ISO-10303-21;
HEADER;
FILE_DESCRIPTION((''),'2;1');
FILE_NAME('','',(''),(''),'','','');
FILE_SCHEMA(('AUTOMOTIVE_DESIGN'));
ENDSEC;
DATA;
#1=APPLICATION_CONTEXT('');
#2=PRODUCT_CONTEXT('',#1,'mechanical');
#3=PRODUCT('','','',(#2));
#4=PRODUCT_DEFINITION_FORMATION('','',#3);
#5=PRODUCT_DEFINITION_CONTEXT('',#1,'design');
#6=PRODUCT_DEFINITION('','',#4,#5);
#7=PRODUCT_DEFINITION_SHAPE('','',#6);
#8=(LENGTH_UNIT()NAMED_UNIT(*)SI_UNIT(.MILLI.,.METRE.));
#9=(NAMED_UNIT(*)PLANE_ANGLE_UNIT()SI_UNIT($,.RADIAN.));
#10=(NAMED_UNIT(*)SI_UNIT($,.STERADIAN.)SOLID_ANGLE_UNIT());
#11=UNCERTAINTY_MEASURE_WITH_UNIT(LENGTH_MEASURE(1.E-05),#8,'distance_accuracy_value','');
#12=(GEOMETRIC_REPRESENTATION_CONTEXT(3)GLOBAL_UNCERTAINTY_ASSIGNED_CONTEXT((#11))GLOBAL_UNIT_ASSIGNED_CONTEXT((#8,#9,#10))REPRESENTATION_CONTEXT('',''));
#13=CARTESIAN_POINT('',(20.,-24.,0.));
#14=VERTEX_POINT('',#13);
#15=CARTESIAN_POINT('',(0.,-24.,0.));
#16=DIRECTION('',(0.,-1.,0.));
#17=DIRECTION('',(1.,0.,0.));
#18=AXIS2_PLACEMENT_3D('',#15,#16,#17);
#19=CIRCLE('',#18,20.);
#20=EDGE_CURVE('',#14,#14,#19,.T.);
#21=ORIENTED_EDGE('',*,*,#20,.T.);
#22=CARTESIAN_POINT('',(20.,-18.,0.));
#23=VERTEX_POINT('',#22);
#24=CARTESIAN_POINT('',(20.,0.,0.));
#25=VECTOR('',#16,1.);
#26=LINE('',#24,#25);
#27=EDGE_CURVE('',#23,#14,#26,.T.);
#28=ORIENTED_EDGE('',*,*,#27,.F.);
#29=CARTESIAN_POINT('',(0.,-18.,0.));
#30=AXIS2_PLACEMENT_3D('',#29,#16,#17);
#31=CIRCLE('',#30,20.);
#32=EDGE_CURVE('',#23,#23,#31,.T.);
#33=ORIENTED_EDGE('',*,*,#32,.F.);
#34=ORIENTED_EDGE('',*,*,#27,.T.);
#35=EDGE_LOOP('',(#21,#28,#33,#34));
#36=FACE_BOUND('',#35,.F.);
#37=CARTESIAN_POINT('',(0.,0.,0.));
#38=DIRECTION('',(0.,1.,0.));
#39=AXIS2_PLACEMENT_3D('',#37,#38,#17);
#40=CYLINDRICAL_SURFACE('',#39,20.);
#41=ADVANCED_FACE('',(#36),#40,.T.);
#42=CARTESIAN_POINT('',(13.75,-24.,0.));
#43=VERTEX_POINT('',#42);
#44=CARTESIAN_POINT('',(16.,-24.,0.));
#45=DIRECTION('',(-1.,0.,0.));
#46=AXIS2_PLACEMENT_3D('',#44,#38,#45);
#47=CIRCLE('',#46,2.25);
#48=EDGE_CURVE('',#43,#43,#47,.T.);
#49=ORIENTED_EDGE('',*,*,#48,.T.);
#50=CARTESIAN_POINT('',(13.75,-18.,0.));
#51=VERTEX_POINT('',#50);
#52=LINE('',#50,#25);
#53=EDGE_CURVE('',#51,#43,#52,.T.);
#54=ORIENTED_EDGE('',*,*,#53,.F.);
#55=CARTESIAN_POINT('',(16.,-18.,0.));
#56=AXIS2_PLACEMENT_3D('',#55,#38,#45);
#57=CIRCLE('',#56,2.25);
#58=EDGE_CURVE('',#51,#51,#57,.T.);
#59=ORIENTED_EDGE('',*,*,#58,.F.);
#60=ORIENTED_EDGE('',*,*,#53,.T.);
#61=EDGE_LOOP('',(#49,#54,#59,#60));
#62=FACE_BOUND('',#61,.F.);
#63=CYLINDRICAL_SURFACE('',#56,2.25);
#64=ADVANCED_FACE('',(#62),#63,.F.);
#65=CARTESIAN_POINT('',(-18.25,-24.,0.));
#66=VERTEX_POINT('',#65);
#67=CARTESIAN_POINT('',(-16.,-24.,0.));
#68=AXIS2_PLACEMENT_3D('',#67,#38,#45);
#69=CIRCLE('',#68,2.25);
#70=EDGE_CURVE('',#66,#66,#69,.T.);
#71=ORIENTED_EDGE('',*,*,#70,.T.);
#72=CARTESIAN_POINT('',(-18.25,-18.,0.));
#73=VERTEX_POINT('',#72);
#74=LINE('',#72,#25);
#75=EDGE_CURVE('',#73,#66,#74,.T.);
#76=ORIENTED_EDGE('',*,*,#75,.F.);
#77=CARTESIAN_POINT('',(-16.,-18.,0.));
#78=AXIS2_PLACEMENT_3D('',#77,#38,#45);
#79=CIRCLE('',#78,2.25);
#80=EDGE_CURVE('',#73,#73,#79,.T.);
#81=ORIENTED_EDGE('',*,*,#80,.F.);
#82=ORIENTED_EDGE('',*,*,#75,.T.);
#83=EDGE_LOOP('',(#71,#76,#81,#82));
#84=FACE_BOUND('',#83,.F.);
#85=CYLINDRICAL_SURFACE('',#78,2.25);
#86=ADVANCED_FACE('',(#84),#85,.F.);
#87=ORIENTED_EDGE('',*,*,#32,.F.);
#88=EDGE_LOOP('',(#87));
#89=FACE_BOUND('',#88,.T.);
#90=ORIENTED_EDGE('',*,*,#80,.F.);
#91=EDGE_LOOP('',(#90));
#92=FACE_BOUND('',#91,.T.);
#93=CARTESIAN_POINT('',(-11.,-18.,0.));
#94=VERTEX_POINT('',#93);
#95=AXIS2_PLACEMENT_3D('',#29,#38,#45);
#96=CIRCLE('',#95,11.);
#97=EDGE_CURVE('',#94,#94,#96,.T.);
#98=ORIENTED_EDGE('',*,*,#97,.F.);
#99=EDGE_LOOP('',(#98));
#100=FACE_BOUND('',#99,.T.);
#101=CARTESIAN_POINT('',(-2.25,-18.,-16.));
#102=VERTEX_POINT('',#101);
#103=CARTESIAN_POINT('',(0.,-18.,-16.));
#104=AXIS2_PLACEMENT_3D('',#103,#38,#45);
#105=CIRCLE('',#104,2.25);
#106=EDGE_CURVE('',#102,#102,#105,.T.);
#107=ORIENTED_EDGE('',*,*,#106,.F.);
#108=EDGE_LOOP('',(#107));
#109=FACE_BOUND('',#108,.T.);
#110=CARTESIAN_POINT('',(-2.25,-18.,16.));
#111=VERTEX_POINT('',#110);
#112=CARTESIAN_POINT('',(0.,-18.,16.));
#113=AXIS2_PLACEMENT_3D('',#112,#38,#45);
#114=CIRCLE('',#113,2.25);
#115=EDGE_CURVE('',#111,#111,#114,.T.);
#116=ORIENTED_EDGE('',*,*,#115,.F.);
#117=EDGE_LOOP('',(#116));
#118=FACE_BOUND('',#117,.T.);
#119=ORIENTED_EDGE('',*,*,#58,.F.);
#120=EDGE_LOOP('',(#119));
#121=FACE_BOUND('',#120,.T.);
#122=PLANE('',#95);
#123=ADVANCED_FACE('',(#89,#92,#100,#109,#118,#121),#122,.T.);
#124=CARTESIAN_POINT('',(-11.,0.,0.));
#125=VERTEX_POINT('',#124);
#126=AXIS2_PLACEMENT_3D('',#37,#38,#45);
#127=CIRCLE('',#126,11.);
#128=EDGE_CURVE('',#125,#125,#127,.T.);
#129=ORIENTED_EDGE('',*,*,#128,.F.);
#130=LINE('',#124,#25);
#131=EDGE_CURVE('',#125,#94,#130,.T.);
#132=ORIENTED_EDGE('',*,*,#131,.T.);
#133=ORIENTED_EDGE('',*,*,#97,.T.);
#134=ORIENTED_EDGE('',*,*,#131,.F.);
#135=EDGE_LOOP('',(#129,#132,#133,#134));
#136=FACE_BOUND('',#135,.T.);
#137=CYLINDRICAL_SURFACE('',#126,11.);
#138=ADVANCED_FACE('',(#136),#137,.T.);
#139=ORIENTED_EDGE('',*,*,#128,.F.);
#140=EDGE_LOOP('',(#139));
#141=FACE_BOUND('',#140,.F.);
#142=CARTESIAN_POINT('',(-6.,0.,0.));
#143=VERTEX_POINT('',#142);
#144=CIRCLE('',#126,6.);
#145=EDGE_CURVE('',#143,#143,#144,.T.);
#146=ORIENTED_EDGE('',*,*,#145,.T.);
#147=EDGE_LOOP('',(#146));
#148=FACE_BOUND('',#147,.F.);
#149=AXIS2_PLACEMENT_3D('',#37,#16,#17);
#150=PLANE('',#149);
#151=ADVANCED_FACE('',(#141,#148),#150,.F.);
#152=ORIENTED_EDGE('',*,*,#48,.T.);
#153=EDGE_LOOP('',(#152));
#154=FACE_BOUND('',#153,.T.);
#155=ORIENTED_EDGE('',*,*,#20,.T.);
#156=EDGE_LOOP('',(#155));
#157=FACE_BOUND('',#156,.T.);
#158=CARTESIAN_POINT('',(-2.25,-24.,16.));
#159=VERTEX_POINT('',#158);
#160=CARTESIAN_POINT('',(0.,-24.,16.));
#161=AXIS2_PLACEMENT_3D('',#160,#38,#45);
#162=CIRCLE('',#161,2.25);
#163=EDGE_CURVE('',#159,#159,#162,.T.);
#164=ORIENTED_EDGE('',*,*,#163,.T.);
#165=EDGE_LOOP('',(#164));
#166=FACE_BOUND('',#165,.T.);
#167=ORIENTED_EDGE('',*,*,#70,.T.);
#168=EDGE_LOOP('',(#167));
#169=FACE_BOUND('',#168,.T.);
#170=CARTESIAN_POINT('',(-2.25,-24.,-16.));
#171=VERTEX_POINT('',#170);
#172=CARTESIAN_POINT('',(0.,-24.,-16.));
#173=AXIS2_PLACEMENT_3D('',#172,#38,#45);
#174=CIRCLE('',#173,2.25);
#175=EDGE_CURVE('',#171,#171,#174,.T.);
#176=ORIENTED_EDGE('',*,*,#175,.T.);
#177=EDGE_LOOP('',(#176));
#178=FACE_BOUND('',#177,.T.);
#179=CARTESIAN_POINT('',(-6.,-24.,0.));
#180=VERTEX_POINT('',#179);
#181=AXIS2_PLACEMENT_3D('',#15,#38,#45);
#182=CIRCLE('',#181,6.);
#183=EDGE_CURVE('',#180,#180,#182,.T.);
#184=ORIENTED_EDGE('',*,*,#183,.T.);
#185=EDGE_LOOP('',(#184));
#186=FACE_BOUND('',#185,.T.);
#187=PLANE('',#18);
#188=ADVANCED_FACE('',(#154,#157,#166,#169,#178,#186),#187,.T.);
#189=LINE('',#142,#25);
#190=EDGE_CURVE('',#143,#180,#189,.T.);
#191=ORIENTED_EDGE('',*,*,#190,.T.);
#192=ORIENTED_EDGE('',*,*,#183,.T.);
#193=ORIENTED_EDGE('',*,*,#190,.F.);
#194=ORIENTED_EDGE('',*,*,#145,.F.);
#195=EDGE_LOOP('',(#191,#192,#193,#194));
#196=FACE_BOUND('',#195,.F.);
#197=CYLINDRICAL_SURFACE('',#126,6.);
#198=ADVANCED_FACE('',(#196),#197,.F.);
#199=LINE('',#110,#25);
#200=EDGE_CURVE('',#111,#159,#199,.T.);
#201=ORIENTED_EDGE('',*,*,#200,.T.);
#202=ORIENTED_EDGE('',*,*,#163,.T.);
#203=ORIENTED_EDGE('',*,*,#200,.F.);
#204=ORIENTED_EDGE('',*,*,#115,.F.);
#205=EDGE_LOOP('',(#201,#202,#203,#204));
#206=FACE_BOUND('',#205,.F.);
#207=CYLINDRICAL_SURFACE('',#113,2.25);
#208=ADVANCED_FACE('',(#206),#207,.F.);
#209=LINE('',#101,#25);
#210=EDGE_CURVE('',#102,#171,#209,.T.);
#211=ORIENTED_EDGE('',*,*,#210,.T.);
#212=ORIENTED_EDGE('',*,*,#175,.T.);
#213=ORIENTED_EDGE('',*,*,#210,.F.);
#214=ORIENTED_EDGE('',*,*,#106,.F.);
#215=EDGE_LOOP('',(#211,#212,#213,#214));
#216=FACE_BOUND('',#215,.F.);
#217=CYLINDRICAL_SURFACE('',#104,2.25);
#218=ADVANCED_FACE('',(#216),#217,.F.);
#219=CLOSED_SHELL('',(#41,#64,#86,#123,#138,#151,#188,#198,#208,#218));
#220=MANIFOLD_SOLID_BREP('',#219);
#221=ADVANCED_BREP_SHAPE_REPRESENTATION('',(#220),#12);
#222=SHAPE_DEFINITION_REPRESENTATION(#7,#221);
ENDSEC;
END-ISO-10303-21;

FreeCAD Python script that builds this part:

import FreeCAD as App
import Part
import Sketcher
Q = App.Units.Quantity

doc = App.newDocument("Part")
body = doc.addObject("PartDesign::Body", "Body")

# Sketch on XZ plane
sketch1 = body.newObject("Sketcher::SketchObject", "Sketch")
sketch1.AttachmentSupport = (doc.getObject("XZ_Plane"), [""])
sketch1.MapMode = "FlatFace"
sketch1.addGeometry(Part.Circle(App.Vector(0, 0, 0), App.Vector(0, 0, 1), 20), False)
sketch1.addConstraint([
    Sketcher.Constraint("Coincident", 0, 3, -1, 1),
    Sketcher.Constraint("Diameter", 0, Q("40 mm")),
])
pad1 = body.newObject("PartDesign::Pad", "Pad")
pad1.Profile = sketch1
pad1.Length = 24

# Sketch on XZ plane
sketch2 = body.newObject("Sketcher::SketchObject", "Sketch001")
sketch2.AttachmentSupport = (doc.getObject("XZ_Plane"), [""])
sketch2.MapMode = "FlatFace"
sketch2.addGeometry(Part.Circle(App.Vector(0, 0, 0), App.Vector(0, 0, 1), 6), False)
sketch2.addConstraint([
    Sketcher.Constraint("Coincident", 0, 3, -1, 1),
    Sketcher.Constraint("Diameter", 0, Q("12 mm")),
])
pocket1 = body.newObject("PartDesign::Pocket", "Pocket")
pocket1.Profile = sketch2
pocket1.Type = "ThroughAll"
pocket1.Reversed = True

# Sketch on XZ plane
sketch3 = body.newObject("Sketcher::SketchObject", "Sketch002")
sketch3.AttachmentSupport = (doc.getObject("XZ_Plane"), [""])
sketch3.MapMode = "FlatFace"
sketch3.addGeometry([
    Part.Circle(App.Vector(0, 0, 0), App.Vector(0, 0, 1), 20),
    Part.Circle(App.Vector(0, 0, 0), App.Vector(0, 0, 1), 11),
], False)
sketch3.addConstraint([
    Sketcher.Constraint("Coincident", 0, 3, -1, 1),
    Sketcher.Constraint("Coincident", 1, 3, -1, 1),
    Sketcher.Constraint("Diameter", 0, Q("40 mm")),
    Sketcher.Constraint("Diameter", 1, Q("22 mm")),
])
pocket2 = body.newObject("PartDesign::Pocket", "Pocket001")
pocket2.Profile = sketch3
pocket2.Length = 18
pocket2.Reversed = True

# Sketch on XZ plane
sketch4 = body.newObject("Sketcher::SketchObject", "Sketch003")
sketch4.AttachmentSupport = (doc.getObject("XZ_Plane"), [""])
sketch4.MapMode = "FlatFace"
sketch4.AttachmentOffset = App.Placement(App.Vector(0, 0, 18), App.Rotation())
sketch4.addGeometry([
    Part.Circle(App.Vector(16, 0, 0), App.Vector(0, 0, 1), 2.2),
    Part.Circle(App.Vector(0, -16, 0), App.Vector(0, 0, 1), 2.2),
    Part.Circle(App.Vector(-16, 0, 0), App.Vector(0, 0, 1), 2.2),
    Part.Circle(App.Vector(0, 16, 0), App.Vector(0, 0, 1), 2.2),
], False)
sketch4.addConstraint([
    Sketcher.Constraint("Equal", 0, 1),
    Sketcher.Constraint("Equal", 1, 2),
    Sketcher.Constraint("Equal", 2, 3),
    Sketcher.Constraint("Symmetric", 0, 3, 2, 3, -1, 1),
    Sketcher.Constraint("Symmetric", 1, 3, 3, 3, -1, 1),
    Sketcher.Constraint("PointOnObject", 0, 3, -1),
    Sketcher.Constraint("PointOnObject", 1, 3, -2),
    Sketcher.Constraint("Diameter", 0, Q("4.5 mm")),
    Sketcher.Constraint("DistanceX", -1, 1, 0, 3, Q("16 mm")),
    Sketcher.Constraint("DistanceY", 1, 3, -1, 1, Q("16 mm")),
])
pocket3 = body.newObject("PartDesign::Pocket", "Pocket002")
pocket3.Profile = sketch4
pocket3.Type = "ThroughAll"
pocket3.Reversed = True

doc.recompute()
